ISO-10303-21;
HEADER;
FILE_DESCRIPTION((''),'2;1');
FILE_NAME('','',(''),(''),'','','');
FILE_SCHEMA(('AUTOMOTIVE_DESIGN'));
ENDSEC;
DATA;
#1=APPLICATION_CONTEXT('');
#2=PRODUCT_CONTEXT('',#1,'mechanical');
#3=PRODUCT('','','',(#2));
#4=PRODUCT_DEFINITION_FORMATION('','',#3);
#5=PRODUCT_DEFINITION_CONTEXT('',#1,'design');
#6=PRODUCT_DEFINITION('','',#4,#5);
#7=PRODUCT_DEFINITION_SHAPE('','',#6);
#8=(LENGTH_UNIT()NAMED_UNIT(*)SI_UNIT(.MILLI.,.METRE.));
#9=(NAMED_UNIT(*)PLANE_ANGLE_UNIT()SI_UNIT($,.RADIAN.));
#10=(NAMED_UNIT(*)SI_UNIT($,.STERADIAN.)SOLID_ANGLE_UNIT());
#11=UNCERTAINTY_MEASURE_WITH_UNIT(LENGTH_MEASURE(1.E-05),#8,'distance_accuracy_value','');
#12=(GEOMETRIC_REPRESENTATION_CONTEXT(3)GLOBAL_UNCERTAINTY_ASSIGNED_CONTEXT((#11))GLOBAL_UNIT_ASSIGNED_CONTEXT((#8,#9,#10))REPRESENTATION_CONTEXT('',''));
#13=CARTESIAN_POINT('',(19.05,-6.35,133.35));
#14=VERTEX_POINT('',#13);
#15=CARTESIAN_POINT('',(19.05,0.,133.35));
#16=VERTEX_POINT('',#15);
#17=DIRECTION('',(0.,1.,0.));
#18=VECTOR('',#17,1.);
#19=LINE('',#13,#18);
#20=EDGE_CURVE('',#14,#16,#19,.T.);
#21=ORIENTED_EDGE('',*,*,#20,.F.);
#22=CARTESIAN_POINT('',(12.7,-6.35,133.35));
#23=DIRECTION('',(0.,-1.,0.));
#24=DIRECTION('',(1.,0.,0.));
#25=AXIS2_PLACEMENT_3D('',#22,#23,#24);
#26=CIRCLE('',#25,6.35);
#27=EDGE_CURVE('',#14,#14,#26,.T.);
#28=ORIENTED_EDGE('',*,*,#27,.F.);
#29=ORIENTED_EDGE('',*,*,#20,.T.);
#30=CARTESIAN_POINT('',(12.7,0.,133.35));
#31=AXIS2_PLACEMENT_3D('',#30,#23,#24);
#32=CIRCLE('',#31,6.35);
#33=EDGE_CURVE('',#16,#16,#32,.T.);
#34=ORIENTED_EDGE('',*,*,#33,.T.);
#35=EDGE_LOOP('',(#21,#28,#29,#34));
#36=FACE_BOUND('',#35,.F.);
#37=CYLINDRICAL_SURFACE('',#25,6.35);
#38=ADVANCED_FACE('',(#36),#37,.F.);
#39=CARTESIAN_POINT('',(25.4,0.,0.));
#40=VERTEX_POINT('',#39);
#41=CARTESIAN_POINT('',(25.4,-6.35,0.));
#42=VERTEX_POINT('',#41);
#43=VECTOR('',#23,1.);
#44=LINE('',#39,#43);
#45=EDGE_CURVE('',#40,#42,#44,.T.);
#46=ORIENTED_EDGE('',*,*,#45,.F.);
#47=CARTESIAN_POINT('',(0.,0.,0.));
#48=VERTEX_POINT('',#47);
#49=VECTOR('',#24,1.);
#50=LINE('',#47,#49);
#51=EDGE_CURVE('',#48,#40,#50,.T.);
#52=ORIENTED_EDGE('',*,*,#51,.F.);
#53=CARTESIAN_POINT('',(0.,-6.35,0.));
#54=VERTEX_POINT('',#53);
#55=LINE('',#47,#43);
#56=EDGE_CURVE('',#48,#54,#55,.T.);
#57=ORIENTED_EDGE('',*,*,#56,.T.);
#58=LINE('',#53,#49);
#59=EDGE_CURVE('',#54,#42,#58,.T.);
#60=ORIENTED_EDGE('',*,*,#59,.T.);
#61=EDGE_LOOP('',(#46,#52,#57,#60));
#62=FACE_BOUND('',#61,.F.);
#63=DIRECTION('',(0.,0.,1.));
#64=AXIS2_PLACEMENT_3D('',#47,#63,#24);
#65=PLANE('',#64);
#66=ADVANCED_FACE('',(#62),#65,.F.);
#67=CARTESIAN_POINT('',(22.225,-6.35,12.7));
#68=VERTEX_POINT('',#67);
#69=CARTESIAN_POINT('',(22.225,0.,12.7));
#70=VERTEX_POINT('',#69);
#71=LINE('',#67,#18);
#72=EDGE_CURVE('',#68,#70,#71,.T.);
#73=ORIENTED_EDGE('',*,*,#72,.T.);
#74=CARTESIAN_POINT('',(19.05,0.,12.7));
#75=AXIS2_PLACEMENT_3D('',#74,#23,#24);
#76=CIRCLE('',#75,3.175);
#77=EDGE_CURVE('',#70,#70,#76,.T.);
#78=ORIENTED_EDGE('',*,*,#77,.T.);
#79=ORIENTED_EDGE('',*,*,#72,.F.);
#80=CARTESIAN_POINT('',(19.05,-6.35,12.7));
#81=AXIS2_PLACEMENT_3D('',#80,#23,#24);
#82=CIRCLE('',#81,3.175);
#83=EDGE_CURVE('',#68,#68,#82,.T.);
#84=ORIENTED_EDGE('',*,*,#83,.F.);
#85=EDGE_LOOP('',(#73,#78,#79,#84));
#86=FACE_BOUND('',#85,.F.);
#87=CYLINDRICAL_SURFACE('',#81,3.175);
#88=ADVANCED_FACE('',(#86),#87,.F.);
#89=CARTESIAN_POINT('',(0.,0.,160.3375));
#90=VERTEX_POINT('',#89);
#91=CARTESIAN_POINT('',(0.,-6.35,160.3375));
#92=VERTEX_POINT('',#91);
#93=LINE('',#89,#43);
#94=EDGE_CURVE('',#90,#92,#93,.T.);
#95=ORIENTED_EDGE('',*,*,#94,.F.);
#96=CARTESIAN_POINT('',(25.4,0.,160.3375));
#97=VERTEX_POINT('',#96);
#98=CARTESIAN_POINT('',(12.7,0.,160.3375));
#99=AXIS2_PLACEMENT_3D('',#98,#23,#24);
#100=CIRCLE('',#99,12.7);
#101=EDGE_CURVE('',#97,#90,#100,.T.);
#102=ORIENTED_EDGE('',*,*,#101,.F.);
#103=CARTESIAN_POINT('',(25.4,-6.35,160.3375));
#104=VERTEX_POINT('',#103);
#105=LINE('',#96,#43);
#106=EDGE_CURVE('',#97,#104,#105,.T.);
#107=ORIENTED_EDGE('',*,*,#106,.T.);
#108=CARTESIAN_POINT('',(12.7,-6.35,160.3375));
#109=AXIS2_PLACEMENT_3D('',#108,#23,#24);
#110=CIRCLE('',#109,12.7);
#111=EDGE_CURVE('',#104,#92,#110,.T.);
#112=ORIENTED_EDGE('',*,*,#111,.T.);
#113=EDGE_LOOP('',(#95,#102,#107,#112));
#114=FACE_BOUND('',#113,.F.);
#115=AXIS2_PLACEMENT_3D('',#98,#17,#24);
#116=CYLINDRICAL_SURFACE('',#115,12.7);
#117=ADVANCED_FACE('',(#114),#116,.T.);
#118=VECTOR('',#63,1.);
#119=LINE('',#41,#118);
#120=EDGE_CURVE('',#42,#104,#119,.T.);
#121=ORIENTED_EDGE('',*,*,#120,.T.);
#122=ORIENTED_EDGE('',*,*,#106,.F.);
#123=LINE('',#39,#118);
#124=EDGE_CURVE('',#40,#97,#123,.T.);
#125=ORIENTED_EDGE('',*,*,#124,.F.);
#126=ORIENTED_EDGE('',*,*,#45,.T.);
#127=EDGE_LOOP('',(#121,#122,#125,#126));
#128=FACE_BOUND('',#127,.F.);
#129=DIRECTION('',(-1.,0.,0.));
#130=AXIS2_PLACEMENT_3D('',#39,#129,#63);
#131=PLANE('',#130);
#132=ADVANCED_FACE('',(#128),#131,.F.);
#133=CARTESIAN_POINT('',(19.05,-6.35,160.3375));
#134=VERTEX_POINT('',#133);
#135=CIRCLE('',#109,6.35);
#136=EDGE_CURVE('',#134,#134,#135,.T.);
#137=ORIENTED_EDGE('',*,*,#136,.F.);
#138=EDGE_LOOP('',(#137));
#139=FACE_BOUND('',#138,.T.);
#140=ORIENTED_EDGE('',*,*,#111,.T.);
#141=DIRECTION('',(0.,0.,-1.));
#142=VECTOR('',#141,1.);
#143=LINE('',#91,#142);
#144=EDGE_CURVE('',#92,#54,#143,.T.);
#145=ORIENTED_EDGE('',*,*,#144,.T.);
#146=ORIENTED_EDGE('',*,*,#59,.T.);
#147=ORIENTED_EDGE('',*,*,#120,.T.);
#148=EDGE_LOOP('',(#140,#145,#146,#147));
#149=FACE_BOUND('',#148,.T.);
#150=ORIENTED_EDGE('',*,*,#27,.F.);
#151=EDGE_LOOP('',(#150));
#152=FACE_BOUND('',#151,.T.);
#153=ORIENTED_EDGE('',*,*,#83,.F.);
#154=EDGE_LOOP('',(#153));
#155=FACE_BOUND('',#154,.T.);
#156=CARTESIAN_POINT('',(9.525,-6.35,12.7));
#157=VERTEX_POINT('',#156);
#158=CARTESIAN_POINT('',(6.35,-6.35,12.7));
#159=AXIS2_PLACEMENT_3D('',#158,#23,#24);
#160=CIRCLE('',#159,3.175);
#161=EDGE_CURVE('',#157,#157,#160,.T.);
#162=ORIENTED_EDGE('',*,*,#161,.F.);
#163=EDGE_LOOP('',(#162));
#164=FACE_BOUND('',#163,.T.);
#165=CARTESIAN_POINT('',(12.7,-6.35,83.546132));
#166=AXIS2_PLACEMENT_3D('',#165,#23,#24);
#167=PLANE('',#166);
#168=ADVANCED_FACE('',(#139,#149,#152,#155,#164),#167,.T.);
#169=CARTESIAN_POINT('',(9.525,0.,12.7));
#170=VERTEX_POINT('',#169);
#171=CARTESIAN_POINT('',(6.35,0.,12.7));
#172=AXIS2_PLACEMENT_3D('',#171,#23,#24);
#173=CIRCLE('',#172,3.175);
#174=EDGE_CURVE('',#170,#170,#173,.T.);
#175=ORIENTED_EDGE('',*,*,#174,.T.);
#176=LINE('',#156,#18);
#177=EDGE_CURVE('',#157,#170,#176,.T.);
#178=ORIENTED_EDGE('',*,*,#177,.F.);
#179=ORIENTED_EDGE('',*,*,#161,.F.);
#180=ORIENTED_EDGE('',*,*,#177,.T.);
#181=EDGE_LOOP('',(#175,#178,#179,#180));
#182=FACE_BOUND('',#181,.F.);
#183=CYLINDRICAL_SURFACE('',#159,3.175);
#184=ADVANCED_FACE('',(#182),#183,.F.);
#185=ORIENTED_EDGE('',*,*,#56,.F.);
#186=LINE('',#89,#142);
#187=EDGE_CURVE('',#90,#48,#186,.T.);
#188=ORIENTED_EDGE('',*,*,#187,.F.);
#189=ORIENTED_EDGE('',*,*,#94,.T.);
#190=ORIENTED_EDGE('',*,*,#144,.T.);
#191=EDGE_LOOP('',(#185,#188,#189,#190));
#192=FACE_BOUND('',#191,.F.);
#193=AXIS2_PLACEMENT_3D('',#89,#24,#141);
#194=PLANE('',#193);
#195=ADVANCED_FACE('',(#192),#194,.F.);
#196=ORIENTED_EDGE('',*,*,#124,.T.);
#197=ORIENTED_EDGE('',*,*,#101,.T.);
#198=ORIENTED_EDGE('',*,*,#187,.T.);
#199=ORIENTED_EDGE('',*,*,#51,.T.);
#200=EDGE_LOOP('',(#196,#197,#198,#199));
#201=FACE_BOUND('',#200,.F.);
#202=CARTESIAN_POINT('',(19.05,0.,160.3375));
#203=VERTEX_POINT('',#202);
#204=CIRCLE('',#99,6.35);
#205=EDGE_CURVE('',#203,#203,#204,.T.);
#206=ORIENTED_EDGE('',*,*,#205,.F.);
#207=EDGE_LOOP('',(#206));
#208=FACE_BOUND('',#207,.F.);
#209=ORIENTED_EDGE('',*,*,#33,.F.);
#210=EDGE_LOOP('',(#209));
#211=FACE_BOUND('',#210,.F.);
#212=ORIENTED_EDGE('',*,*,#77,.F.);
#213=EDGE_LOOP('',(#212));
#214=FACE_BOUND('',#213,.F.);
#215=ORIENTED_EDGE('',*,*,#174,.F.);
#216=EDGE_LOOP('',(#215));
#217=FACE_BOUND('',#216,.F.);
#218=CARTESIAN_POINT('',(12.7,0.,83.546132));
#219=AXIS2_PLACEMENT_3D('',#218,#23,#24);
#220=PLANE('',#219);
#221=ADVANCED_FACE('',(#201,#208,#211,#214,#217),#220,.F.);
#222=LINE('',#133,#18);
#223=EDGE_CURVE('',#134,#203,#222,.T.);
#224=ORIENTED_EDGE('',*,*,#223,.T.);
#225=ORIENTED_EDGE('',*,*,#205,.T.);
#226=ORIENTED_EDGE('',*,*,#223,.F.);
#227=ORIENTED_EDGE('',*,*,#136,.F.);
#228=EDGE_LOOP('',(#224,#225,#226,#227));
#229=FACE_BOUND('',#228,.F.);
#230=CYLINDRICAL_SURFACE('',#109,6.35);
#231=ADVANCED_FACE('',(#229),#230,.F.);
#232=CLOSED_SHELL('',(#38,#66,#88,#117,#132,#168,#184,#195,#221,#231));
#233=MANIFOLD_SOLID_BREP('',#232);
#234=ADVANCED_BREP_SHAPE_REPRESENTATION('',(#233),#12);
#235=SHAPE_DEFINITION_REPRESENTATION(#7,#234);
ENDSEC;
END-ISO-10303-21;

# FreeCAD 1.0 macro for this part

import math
import FreeCAD as App
import Part
import Sketcher
from FreeCAD import Vector
Q = App.Units.Quantity

doc = App.newDocument("Part")
body = doc.addObject("PartDesign::Body", "Body")

sketch1 = body.newObject("Sketcher::SketchObject", "Sketch")
sketch1.AttachmentSupport = (doc.getObject("XZ_Plane"), [""])
sketch1.MapMode = "FlatFace"
sketch1.addGeometry(Part.LineSegment(Vector(0, 160, 0), Vector(0, 0, 0)), False)
sketch1.addGeometry(Part.LineSegment(Vector(0, 0, 0), Vector(25, 0, 0)), False)
sketch1.addGeometry(Part.LineSegment(Vector(25, 0, 0), Vector(25, 160, 0)), False)
sketch1.addGeometry(Part.ArcOfCircle(Part.Circle(Vector(13, 160, 0), Vector(0, 0, 1), 13), math.radians(0), math.radians(180)), False)
sketch1.addConstraint(Sketcher.Constraint("Coincident", 0, 2, 1, 1))
sketch1.addConstraint(Sketcher.Constraint("Coincident", 1, 2, 2, 1))
sketch1.addConstraint(Sketcher.Constraint("Tangent", 2, 2, 3, 1))
sketch1.addConstraint(Sketcher.Constraint("Tangent", 3, 2, 0, 1))
sketch1.addConstraint(Sketcher.Constraint("Vertical", 0))
sketch1.addConstraint(Sketcher.Constraint("Horizontal", 1))
sketch1.addConstraint(Sketcher.Constraint("Vertical", 2))
sketch1.addConstraint(Sketcher.Constraint("Coincident", 0, 2, -1, 1))
sketch1.addConstraint(Sketcher.Constraint("Radius", 3, Q("0.5 in")))
sketch1.addConstraint(Sketcher.Constraint("DistanceY", 0, 2, 0, 1, Q("6.3125 in")))
pad1 = body.newObject("PartDesign::Pad", "Pad")
pad1.Profile = sketch1
pad1.Length = Q("0.25 in")

sketch2 = body.newObject("Sketcher::SketchObject", "Sketch001")
sketch2.AttachmentSupport = (doc.getObject("XZ_Plane"), [""])
sketch2.MapMode = "FlatFace"
sketch2.AttachmentOffset = App.Placement(Vector(0, 0, 0.25 * 25.4), App.Rotation())
sketch2.addGeometry(Part.Circle(Vector(12.7, 160.3, 0), Vector(0, 0, 1), 6.3), False)
sketch2.addGeometry(Part.Circle(Vector(12.7, 133.3, 0), Vector(0, 0, 1), 6.3), False)
sketch2.addGeometry(Part.Circle(Vector(6.3, 12.7, 0), Vector(0, 0, 1), 3.2), False)
sketch2.addGeometry(Part.Circle(Vector(19.1, 12.7, 0), Vector(0, 0, 1), 3.2), False)
sketch2.addConstraint(Sketcher.Constraint("Equal", 0, 1))
sketch2.addConstraint(Sketcher.Constraint("Equal", 2, 3))
sketch2.addConstraint(Sketcher.Constraint("Horizontal", 2, 3, 3, 3))
sketch2.addConstraint(Sketcher.Constraint("Vertical", 0, 3, 1, 3))
sketch2.addConstraint(Sketcher.Constraint("Diameter", 0, Q("0.5 in")))
sketch2.addConstraint(Sketcher.Constraint("Diameter", 2, Q("0.25 in")))
sketch2.addConstraint(Sketcher.Constraint("DistanceX", -1, 1, 0, 3, Q("0.5 in")))
sketch2.addConstraint(Sketcher.Constraint("DistanceY", -1, 1, 2, 3, Q("0.5 in")))
sketch2.addConstraint(Sketcher.Constraint("DistanceX", 2, 3, 3, 3, Q("0.5 in")))
sketch2.addConstraint(Sketcher.Constraint("DistanceY", -1, 1, 1, 3, Q("5.25 in")))
sketch2.addConstraint(Sketcher.Constraint("DistanceX", -1, 1, 2, 3, Q("0.25 in")))
sketch2.addConstraint(Sketcher.Constraint("DistanceY", -1, 1, 0, 3, Q("6.3125 in")))
pocket1 = body.newObject("PartDesign::Pocket", "Pocket")
pocket1.Profile = sketch2
pocket1.Length = Q("1 in")

doc.recompute()
